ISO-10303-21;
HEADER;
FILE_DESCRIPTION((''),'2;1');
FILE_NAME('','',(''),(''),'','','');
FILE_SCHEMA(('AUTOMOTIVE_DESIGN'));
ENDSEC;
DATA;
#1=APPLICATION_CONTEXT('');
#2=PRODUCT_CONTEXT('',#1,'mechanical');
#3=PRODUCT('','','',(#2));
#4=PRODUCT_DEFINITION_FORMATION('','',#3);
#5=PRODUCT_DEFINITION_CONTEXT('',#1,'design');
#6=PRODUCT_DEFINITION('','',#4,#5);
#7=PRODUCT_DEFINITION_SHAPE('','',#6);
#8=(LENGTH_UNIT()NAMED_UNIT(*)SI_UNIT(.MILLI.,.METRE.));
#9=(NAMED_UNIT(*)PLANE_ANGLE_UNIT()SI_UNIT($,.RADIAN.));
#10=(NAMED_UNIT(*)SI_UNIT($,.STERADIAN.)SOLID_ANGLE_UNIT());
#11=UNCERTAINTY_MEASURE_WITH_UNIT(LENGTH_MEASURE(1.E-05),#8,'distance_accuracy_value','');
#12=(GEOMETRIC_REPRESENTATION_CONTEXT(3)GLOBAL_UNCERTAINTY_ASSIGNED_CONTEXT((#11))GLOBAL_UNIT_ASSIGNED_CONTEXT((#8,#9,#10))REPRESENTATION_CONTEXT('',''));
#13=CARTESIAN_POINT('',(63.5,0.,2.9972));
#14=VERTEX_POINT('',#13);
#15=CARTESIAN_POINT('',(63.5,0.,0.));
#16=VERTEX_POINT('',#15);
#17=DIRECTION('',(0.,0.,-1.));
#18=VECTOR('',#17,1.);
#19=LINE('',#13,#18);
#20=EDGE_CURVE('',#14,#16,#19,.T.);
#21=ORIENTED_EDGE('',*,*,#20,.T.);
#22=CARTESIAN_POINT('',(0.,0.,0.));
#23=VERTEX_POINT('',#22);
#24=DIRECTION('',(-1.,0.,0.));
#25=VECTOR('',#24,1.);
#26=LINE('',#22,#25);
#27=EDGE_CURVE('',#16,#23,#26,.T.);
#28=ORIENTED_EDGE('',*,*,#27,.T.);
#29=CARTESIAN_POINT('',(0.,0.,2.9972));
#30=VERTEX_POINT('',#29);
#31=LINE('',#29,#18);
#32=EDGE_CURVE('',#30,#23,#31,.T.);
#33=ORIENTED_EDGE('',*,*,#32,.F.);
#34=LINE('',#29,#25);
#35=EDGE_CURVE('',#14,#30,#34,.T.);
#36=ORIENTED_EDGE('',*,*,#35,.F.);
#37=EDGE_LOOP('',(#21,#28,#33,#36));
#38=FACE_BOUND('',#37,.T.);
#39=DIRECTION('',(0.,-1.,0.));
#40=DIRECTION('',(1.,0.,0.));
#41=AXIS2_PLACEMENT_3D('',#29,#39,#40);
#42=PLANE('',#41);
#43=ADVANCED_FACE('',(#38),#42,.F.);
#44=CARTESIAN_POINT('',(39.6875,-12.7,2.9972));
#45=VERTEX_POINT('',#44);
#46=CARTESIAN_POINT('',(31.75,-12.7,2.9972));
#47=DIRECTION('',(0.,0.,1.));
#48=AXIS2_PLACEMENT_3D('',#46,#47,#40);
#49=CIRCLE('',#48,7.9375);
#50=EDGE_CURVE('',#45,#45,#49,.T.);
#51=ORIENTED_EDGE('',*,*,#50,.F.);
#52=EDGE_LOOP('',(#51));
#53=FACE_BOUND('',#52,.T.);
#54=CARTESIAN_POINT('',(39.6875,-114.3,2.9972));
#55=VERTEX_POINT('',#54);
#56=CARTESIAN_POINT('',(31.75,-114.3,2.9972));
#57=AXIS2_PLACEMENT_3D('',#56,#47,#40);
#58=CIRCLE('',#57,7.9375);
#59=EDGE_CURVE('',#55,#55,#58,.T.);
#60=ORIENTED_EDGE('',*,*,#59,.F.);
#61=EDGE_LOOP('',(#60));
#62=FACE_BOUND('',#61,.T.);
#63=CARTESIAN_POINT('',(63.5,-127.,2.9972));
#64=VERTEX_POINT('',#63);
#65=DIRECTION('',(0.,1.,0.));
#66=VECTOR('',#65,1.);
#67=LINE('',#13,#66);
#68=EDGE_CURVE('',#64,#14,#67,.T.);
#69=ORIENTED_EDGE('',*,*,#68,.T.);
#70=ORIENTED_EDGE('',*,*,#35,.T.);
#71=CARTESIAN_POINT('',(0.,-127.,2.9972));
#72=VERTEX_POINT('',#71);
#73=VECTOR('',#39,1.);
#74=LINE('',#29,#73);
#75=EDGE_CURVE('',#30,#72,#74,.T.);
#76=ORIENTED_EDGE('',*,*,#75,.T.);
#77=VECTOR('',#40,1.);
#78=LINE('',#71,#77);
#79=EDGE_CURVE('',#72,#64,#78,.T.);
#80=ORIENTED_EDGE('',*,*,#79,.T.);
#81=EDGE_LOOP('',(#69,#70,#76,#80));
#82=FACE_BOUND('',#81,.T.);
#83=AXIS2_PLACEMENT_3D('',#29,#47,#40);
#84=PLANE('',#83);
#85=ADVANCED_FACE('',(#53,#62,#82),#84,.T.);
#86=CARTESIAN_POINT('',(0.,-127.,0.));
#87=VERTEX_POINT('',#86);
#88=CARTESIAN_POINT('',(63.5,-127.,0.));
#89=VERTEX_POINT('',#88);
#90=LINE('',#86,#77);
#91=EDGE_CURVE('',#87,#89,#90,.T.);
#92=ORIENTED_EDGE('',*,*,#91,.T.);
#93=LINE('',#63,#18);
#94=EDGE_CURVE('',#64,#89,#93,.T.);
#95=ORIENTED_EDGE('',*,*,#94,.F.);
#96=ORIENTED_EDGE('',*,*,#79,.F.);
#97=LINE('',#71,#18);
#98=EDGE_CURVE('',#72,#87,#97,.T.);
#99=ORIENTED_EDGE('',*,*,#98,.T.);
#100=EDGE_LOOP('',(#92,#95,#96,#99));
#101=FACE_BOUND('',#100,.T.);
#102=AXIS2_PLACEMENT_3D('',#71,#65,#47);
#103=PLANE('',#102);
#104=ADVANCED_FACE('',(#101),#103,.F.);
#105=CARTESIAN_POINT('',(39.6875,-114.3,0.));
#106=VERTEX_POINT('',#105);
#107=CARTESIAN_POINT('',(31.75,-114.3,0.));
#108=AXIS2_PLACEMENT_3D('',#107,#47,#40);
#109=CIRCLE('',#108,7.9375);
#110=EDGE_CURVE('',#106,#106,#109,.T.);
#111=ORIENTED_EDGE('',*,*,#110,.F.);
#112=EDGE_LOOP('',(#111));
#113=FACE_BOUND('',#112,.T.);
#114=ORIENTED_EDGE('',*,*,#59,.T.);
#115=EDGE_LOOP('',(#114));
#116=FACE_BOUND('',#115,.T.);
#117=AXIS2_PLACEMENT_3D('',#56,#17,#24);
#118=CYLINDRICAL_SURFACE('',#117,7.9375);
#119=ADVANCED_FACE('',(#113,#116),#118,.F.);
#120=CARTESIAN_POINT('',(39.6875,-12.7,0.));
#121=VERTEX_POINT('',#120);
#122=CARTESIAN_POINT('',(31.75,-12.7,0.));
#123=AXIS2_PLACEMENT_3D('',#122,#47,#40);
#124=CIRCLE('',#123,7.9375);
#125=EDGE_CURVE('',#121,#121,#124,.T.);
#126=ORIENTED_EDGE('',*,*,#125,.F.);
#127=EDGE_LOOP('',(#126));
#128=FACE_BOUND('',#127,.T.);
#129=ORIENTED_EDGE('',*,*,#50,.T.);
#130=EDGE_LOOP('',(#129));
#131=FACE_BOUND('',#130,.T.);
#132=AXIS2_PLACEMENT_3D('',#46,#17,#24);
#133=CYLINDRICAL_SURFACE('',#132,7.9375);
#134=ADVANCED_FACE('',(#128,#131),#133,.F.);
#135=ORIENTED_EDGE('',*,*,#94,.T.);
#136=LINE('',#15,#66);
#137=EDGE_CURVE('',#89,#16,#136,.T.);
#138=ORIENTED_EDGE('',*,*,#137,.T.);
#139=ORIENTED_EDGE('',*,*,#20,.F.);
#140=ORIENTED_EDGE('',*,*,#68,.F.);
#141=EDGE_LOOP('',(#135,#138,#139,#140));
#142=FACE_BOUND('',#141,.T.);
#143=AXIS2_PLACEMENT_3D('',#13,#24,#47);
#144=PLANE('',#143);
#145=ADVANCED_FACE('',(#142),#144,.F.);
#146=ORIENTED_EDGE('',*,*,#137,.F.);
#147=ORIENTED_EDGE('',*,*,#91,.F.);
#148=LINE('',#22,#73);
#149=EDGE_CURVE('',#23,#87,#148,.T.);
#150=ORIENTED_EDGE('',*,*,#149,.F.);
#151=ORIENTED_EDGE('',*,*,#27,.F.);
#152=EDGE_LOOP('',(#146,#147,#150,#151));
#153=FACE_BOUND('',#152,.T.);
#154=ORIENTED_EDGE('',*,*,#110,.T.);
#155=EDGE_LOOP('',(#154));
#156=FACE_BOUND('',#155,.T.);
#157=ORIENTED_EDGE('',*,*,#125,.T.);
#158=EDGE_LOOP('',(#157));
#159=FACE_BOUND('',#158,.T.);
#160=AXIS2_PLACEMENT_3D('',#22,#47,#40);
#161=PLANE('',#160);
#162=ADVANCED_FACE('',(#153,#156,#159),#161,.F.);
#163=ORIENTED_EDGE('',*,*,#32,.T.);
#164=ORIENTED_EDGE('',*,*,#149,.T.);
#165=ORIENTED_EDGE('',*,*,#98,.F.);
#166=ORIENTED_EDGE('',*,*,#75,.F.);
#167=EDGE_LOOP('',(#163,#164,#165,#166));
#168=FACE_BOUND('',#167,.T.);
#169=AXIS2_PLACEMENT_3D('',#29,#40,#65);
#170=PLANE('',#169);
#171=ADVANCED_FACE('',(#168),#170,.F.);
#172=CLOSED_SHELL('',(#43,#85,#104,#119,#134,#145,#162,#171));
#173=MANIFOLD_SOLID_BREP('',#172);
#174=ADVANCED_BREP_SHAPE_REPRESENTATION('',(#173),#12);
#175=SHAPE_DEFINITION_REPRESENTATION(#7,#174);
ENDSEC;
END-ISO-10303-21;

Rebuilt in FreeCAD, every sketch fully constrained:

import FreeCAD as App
import Part
import Sketcher

V = App.Vector
Q = App.Units.Quantity


def add_polygon(sketch, points):
    """Adds a closed chain of lines whose ends are joined by coincident constraints."""
    first, n = sketch.GeometryCount, len(points)
    for a, b in zip(points, points[1:] + points[:1]):
        sketch.addGeometry(Part.LineSegment(App.Vector(*a, 0), App.Vector(*b, 0)), False)
    for i in range(n):
        sketch.addConstraint(Sketcher.Constraint("Coincident", first + i, 2, first + (i + 1) % n, 1))

doc = App.newDocument("Part")
body = doc.addObject("PartDesign::Body", "Body")

sketch1 = body.newObject("Sketcher::SketchObject", "Sketch")
sketch1.AttachmentSupport = (doc.getObject("XY_Plane"), [""])
sketch1.MapMode = "FlatFace"
add_polygon(sketch1, [(0, 0), (0, -127), (64, -127), (64, 0)])
sketch1.addGeometry(Part.Circle(V(32, -114, 0), V(0, 0, 1), 8), False)
sketch1.addGeometry(Part.Circle(V(32, -13, 0), V(0, 0, 1), 8), False)
sketch1.addConstraint(Sketcher.Constraint("Vertical", 0))
sketch1.addConstraint(Sketcher.Constraint("Horizontal", 1))
sketch1.addConstraint(Sketcher.Constraint("Vertical", 2))
sketch1.addConstraint(Sketcher.Constraint("Horizontal", 3))
sketch1.addConstraint(Sketcher.Constraint("Coincident", 3, 2, -1, 1))
sketch1.addConstraint(Sketcher.Constraint("Equal", 4, 5))
sketch1.addConstraint(Sketcher.Constraint("Vertical", 4, 3, 5, 3))
sketch1.addConstraint(Sketcher.Constraint("DistanceY", 0, 2, 0, 1, Q("5 in")))
sketch1.addConstraint(Sketcher.Constraint("Diameter", 4, Q("0.625 in")))
sketch1.addConstraint(Sketcher.Constraint("DistanceX", 1, 1, 1, 2, Q("2.5 in")))
sketch1.addConstraint(Sketcher.Constraint("DistanceY", 4, 3, 5, 3, Q("4 in")))
sketch1.addConstraint(Sketcher.Constraint("DistanceY", 4, 3, -1, 1, Q("4.5 in")))
sketch1.addConstraint(Sketcher.Constraint("DistanceX", -1, 1, 4, 3, Q("1.25 in")))
pad1 = body.newObject("PartDesign::Pad", "Pad")
pad1.Profile = sketch1
pad1.Length = Q("0.118 in")

doc.recompute()
